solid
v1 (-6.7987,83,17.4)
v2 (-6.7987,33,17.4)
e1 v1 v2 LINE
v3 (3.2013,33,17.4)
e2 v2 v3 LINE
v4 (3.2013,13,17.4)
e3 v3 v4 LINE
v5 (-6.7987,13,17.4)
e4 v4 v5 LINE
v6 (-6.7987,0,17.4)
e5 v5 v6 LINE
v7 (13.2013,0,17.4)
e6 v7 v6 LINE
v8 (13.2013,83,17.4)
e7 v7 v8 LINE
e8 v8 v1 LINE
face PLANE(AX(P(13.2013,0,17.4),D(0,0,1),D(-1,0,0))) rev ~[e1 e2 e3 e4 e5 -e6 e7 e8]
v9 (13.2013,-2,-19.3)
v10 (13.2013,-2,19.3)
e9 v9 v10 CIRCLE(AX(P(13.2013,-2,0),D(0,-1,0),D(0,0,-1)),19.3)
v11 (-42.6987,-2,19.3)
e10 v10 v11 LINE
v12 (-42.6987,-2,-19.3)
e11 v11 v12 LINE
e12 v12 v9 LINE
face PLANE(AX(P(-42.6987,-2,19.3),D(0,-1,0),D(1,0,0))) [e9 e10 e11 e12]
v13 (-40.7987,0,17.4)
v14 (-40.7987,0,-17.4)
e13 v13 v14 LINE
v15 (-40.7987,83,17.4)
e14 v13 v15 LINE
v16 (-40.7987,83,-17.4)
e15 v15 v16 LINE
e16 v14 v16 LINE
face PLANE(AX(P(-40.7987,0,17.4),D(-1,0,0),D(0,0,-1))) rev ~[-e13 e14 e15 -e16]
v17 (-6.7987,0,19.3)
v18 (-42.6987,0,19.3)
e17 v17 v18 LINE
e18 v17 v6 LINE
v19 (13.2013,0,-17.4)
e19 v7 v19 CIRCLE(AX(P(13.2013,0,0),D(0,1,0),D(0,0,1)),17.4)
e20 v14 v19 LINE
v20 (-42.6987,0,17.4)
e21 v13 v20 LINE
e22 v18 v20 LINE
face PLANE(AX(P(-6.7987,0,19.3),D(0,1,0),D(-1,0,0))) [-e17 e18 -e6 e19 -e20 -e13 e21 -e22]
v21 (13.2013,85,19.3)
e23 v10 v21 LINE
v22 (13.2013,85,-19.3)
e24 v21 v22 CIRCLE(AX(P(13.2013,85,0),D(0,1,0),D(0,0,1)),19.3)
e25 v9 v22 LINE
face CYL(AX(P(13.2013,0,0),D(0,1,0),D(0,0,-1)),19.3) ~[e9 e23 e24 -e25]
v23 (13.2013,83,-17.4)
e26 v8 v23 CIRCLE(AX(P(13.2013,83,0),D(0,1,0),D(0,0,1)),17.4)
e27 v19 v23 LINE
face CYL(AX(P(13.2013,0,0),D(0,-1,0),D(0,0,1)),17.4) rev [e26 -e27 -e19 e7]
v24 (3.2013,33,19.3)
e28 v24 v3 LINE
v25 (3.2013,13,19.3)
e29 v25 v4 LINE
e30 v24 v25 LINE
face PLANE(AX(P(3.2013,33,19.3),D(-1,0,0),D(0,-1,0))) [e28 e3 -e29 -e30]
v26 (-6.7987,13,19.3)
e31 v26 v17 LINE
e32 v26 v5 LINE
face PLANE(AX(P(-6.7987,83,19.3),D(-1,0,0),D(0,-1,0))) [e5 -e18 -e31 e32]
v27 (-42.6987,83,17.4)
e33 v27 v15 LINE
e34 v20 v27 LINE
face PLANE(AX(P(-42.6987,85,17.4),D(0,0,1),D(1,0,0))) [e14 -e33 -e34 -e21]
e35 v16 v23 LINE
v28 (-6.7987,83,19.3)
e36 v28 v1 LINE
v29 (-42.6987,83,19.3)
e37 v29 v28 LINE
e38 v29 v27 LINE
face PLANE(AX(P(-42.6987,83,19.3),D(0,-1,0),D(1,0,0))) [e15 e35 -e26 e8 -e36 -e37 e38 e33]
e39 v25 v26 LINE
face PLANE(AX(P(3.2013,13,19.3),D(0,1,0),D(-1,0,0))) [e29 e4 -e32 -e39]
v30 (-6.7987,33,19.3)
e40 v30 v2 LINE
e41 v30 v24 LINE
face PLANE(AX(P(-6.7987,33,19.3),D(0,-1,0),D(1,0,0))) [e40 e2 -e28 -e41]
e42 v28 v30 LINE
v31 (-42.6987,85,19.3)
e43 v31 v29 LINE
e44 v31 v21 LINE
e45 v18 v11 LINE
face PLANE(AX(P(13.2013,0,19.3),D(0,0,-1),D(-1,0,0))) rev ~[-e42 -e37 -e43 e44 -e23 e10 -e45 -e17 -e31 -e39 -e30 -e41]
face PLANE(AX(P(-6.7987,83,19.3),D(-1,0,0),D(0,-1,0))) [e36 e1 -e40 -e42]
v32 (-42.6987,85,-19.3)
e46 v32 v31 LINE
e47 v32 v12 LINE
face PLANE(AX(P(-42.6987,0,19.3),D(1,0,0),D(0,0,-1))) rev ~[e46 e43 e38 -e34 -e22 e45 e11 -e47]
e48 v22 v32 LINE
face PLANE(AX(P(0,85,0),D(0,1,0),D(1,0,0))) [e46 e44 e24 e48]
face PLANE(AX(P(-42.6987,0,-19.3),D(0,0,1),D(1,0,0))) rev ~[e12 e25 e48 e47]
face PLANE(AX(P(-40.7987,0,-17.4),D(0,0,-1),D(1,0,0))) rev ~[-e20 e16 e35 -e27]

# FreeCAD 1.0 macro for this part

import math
import FreeCAD as App
import Part
import Sketcher
from FreeCAD import Vector

doc = App.newDocument("Part")
body = doc.addObject("PartDesign::Body", "Body")

sketch1 = body.newObject("Sketcher::SketchObject", "Sketch")
sketch1.AttachmentSupport = (doc.getObject("XZ_Plane"), [""])
sketch1.MapMode = "FlatFace"
sketch1.addGeometry(Part.LineSegment(Vector(13, -19, 0), Vector(-43, -19, 0)), False)
sketch1.addGeometry(Part.LineSegment(Vector(-43, -19, 0), Vector(-43, 19, 0)), False)
sketch1.addGeometry(Part.LineSegment(Vector(-43, 19, 0), Vector(13, 19, 0)), False)
sketch1.addGeometry(Part.ArcOfCircle(Part.Circle(Vector(13, 0, 0), Vector(0, 0, 1), 19), math.radians(-90), math.radians(90)), False)
sketch1.addGeometry(Part.LineSegment(Vector(13, 17, 0), Vector(-41, 17, 0)), False)
sketch1.addGeometry(Part.LineSegment(Vector(-41, 17, 0), Vector(-41, -17, 0)), False)
sketch1.addGeometry(Part.LineSegment(Vector(-41, -17, 0), Vector(13, -17, 0)), False)
sketch1.addGeometry(Part.ArcOfCircle(Part.Circle(Vector(13, 0, 0), Vector(0, 0, 1), 17), math.radians(-90), math.radians(90)), False)
sketch1.addConstraint(Sketcher.Constraint("Coincident", 0, 2, 1, 1))
sketch1.addConstraint(Sketcher.Constraint("Coincident", 1, 2, 2, 1))
sketch1.addConstraint(Sketcher.Constraint("Tangent", 2, 2, 3, 2))
sketch1.addConstraint(Sketcher.Constraint("Tangent", 3, 1, 0, 1))
sketch1.addConstraint(Sketcher.Constraint("Coincident", 4, 2, 5, 1))
sketch1.addConstraint(Sketcher.Constraint("Coincident", 5, 2, 6, 1))
sketch1.addConstraint(Sketcher.Constraint("Tangent", 6, 2, 7, 1))
sketch1.addConstraint(Sketcher.Constraint("Tangent", 7, 2, 4, 1))
sketch1.addConstraint(Sketcher.Constraint("Horizontal", 0))
sketch1.addConstraint(Sketcher.Constraint("Vertical", 1))
sketch1.addConstraint(Sketcher.Constraint("Horizontal", 2))
sketch1.addConstraint(Sketcher.Constraint("Horizontal", 4))
sketch1.addConstraint(Sketcher.Constraint("Vertical", 5))
sketch1.addConstraint(Sketcher.Constraint("Horizontal", 6))
sketch1.addConstraint(Sketcher.Constraint("Coincident", 7, 3, 3, 3))
sketch1.addConstraint(Sketcher.Constraint("PointOnObject", 3, 3, -1))
sketch1.addConstraint(Sketcher.Constraint("DistanceX", 4, 2, 4, 1, 54.0))
sketch1.addConstraint(Sketcher.Constraint("Radius", 3, 19.3))
sketch1.addConstraint(Sketcher.Constraint("Radius", 7, 17.4))
sketch1.addConstraint(Sketcher.Constraint("DistanceX", 1, 2, 4, 2, 1.9))
sketch1.addConstraint(Sketcher.Constraint("DistanceX", -1, 1, 3, 3, 13.2013))
pad1 = body.newObject("PartDesign::Pad", "Pad")
pad1.Profile = sketch1
pad1.Length = 83
pad1.Reversed = True

sketch2 = body.newObject("Sketcher::SketchObject", "Sketch001")
sketch2.AttachmentSupport = (doc.getObject("XZ_Plane"), [""])
sketch2.MapMode = "FlatFace"
sketch2.AttachmentOffset = App.Placement(Vector(0, 0, -85), App.Rotation())
sketch2.addGeometry(Part.LineSegment(Vector(13, -19, 0), Vector(-43, -19, 0)), False)
sketch2.addGeometry(Part.LineSegment(Vector(-43, -19, 0), Vector(-43, 19, 0)), False)
sketch2.addGeometry(Part.LineSegment(Vector(-43, 19, 0), Vector(13, 19, 0)), False)
sketch2.addGeometry(Part.ArcOfCircle(Part.Circle(Vector(13, 0, 0), Vector(0, 0, 1), 19), math.radians(-90), math.radians(90)), False)
sketch2.addConstraint(Sketcher.Constraint("Coincident", 0, 2, 1, 1))
sketch2.addConstraint(Sketcher.Constraint("Coincident", 1, 2, 2, 1))
sketch2.addConstraint(Sketcher.Constraint("Tangent", 2, 2, 3, 2))
sketch2.addConstraint(Sketcher.Constraint("Tangent", 3, 1, 0, 1))
sketch2.addConstraint(Sketcher.Constraint("Horizontal", 0))
sketch2.addConstraint(Sketcher.Constraint("Vertical", 1))
sketch2.addConstraint(Sketcher.Constraint("Horizontal", 2))
sketch2.addConstraint(Sketcher.Constraint("PointOnObject", 3, 3, -1))
sketch2.addConstraint(Sketcher.Constraint("Radius", 3, 19.3))
sketch2.addConstraint(Sketcher.Constraint("DistanceX", 0, 2, 0, 1, 55.9))
sketch2.addConstraint(Sketcher.Constraint("DistanceX", -1, 1, 3, 3, 13.2013))
pad2 = body.newObject("PartDesign::Pad", "Pad001")
pad2.Profile = sketch2
pad2.Length = 2

sketch3 = body.newObject("Sketcher::SketchObject", "Sketch002")
sketch3.AttachmentSupport = (doc.getObject("XZ_Plane"), [""])
sketch3.MapMode = "FlatFace"
sketch3.addGeometry(Part.LineSegment(Vector(13, 19, 0), Vector(-43, 19, 0)), False)
sketch3.addGeometry(Part.LineSegment(Vector(-43, 19, 0), Vector(-43, -19, 0)), False)
sketch3.addGeometry(Part.LineSegment(Vector(-43, -19, 0), Vector(13, -19, 0)), False)
sketch3.addGeometry(Part.ArcOfCircle(Part.Circle(Vector(13, 0, 0), Vector(0, 0, 1), 19), math.radians(-90), math.radians(90)), False)
sketch3.addConstraint(Sketcher.Constraint("Coincident", 0, 2, 1, 1))
sketch3.addConstraint(Sketcher.Constraint("Coincident", 1, 2, 2, 1))
sketch3.addConstraint(Sketcher.Constraint("Tangent", 2, 2, 3, 1))
sketch3.addConstraint(Sketcher.Constraint("Tangent", 3, 2, 0, 1))
sketch3.addConstraint(Sketcher.Constraint("Horizontal", 0))
sketch3.addConstraint(Sketcher.Constraint("Vertical", 1))
sketch3.addConstraint(Sketcher.Constraint("Horizontal", 2))
sketch3.addConstraint(Sketcher.Constraint("PointOnObject", 3, 3, -1))
sketch3.addConstraint(Sketcher.Constraint("Radius", 3, 19.3))
sketch3.addConstraint(Sketcher.Constraint("DistanceX", 0, 2, 0, 1, 55.9))
sketch3.addConstraint(Sketcher.Constraint("DistanceX", -1, 1, 3, 3, 13.2013))
pad3 = body.newObject("PartDesign::Pad", "Pad002")
pad3.Profile = sketch3
pad3.Length = 2

sketch4 = body.newObject("Sketcher::SketchObject", "Sketch003")
sketch4.AttachmentSupport = (doc.getObject("XY_Plane"), [""])
sketch4.MapMode = "FlatFace"
sketch4.AttachmentOffset = App.Placement(Vector(0, 0, 19.3), App.Rotation())
sketch4.addGeometry(Part.LineSegment(Vector(-43, 0, 0), Vector(-7, 0, 0)), False)
sketch4.addGeometry(Part.LineSegment(Vector(-7, 0, 0), Vector(-7, 83, 0)), False)
sketch4.addGeometry(Part.LineSegment(Vector(-7, 83, 0), Vector(-43, 83, 0)), False)
sketch4.addGeometry(Part.LineSegment(Vector(-43, 83, 0), Vector(-43, 0, 0)), False)
sketch4.addConstraint(Sketcher.Constraint("Coincident", 0, 2, 1, 1))
sketch4.addConstraint(Sketcher.Constraint("Coincident", 1, 2, 2, 1))
sketch4.addConstraint(Sketcher.Constraint("Coincident", 2, 2, 3, 1))
sketch4.addConstraint(Sketcher.Constraint("Coincident", 3, 2, 0, 1))
sketch4.addConstraint(Sketcher.Constraint("Horizontal", 0))
sketch4.addConstraint(Sketcher.Constraint("Vertical", 1))
sketch4.addConstraint(Sketcher.Constraint("Horizontal", 2))
sketch4.addConstraint(Sketcher.Constraint("Vertical", 3))
sketch4.addConstraint(Sketcher.Constraint("PointOnObject", 0, 2, -1))
sketch4.addConstraint(Sketcher.Constraint("DistanceY", 1, 1, 1, 2, 83.0))
sketch4.addConstraint(Sketcher.Constraint("DistanceX", 0, 1, 0, 2, 35.9))
sketch4.addConstraint(Sketcher.Constraint("DistanceX", 0, 2, -1, 1, 6.7987))
pocket1 = body.newObject("PartDesign::Pocket", "Pocket")
pocket1.Profile = sketch4
pocket1.Length = 1.9

sketch5 = body.newObject("Sketcher::SketchObject", "Sketch004")
sketch5.AttachmentSupport = (doc.getObject("XY_Plane"), [""])
sketch5.MapMode = "FlatFace"
sketch5.AttachmentOffset = App.Placement(Vector(0, 0, 19.3), App.Rotation())
sketch5.addGeometry(Part.LineSegment(Vector(-7, 33, 0), Vector(-7, 13, 0)), False)
sketch5.addGeometry(Part.LineSegment(Vector(-7, 13, 0), Vector(3, 13, 0)), False)
sketch5.addGeometry(Part.LineSegment(Vector(3, 13, 0), Vector(3, 33, 0)), False)
sketch5.addGeometry(Part.LineSegment(Vector(3, 33, 0), Vector(-7, 33, 0)), False)
sketch5.addConstraint(Sketcher.Constraint("Coincident", 0, 2, 1, 1))
sketch5.addConstraint(Sketcher.Constraint("Coincident", 1, 2, 2, 1))
sketch5.addConstraint(Sketcher.Constraint("Coincident", 2, 2, 3, 1))
sketch5.addConstraint(Sketcher.Constraint("Coincident", 3, 2, 0, 1))
sketch5.addConstraint(Sketcher.Constraint("Vertical", 0))
sketch5.addConstraint(Sketcher.Constraint("Horizontal", 1))
sketch5.addConstraint(Sketcher.Constraint("Vertical", 2))
sketch5.addConstraint(Sketcher.Constraint("Horizontal", 3))
sketch5.addConstraint(Sketcher.Constraint("DistanceX", 1, 1, 1, 2, 10.0))
sketch5.addConstraint(Sketcher.Constraint("DistanceY", 0, 2, 0, 1, 20.0))
sketch5.addConstraint(Sketcher.Constraint("DistanceY", -1, 1, 0, 2, 13.0))
sketch5.addConstraint(Sketcher.Constraint("DistanceX", 0, 2, -1, 1, 6.7987))
pocket2 = body.newObject("PartDesign::Pocket", "Pocket001")
pocket2.Profile = sketch5
pocket2.Length = 1.9

doc.recompute()
